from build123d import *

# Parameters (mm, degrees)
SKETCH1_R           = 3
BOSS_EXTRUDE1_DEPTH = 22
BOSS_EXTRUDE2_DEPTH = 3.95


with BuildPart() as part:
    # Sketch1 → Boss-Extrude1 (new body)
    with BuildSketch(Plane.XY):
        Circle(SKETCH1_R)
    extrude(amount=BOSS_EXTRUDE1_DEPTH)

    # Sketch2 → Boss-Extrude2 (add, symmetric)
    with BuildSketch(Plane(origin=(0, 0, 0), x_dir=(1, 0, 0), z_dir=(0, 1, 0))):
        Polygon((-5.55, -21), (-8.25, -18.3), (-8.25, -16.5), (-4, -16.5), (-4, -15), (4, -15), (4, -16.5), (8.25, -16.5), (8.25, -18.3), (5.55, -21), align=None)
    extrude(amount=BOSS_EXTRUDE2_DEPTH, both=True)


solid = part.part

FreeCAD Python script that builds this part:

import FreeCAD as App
import Part
import Sketcher
from FreeCAD import Vector
Q = App.Units.Quantity


def add_polygon(sketch, points):
    """Adds a closed chain of lines whose ends are joined by coincident constraints."""
    first, n = sketch.GeometryCount, len(points)
    for a, b in zip(points, points[1:] + points[:1]):
        sketch.addGeometry(Part.LineSegment(App.Vector(*a, 0), App.Vector(*b, 0)), False)
    for i in range(n):
        sketch.addConstraint(Sketcher.Constraint("Coincident", first + i, 2, first + (i + 1) % n, 1))

doc = App.newDocument("Part")
body = doc.addObject("PartDesign::Body", "Body")

# Sketch on XY plane
sketch1 = body.newObject("Sketcher::SketchObject", "Sketch")
sketch1.AttachmentSupport = (doc.getObject("XY_Plane"), [""])
sketch1.MapMode = "FlatFace"
sketch1.addGeometry(Part.Circle(Vector(0, 0, 0), Vector(0, 0, 1), 3), False)
sketch1.addConstraint(Sketcher.Constraint("Coincident", 0, 3, -1, 1))
sketch1.addConstraint(Sketcher.Constraint("Diameter", 0, Q("6 mm")))
pad1 = body.newObject("PartDesign::Pad", "Pad")
pad1.Profile = sketch1
pad1.Length = 22

# Sketch on XZ plane
sketch2 = body.newObject("Sketcher::SketchObject", "Sketch001")
sketch2.AttachmentSupport = (doc.getObject("XZ_Plane"), [""])
sketch2.MapMode = "FlatFace"
add_polygon(sketch2, [(-8.25, 18.3), (-5.55, 21), (5.55, 21), (8.25, 18.3), (8.25, 16.5), (4, 16.5), (4, 15), (-4, 15), (-4, 16.5), (-8.25, 16.5)])  # lines 0-9
sketch2.addConstraint(Sketcher.Constraint("Horizontal", 1))
sketch2.addConstraint(Sketcher.Constraint("Vertical", 3))
sketch2.addConstraint(Sketcher.Constraint("Horizontal", 4))
sketch2.addConstraint(Sketcher.Constraint("Vertical", 5))
sketch2.addConstraint(Sketcher.Constraint("Horizontal", 6))
sketch2.addConstraint(Sketcher.Constraint("Vertical", 7))
sketch2.addConstraint(Sketcher.Constraint("Horizontal", 8))
sketch2.addConstraint(Sketcher.Constraint("Vertical", 9))
sketch2.addConstraint(Sketcher.Constraint("Symmetric", 4, 2, 7, 2, -2))
sketch2.addConstraint(Sketcher.Constraint("Symmetric", 2, 2, 9, 2, -2))
sketch2.addConstraint(Sketcher.Constraint("Perpendicular", 0, 2))
sketch2.addConstraint(Sketcher.Constraint("Equal", 0, 2))
sketch2.addConstraint(Sketcher.Constraint("DistanceX", 6, 2, 6, 1, Q("8 mm")))
sketch2.addConstraint(Sketcher.Constraint("DistanceX", 1, 1, 1, 2, Q("11.1 mm")))
sketch2.addConstraint(Sketcher.Constraint("DistanceY", 3, 2, 3, 1, Q("1.8 mm")))
sketch2.addConstraint(Sketcher.Constraint("DistanceY", 5, 2, 5, 1, Q("1.5 mm")))
sketch2.addConstraint(Sketcher.Constraint("DistanceY", -1, 1, 0, 2, Q("21 mm")))
sketch2.addConstraint(Sketcher.Constraint("DistanceY", -1, 1, 5, 2, Q("15 mm")))
pad2 = body.newObject("PartDesign::Pad", "Pad001")
pad2.Profile = sketch2
pad2.Length = 7.9
pad2.Midplane = True

doc.recompute()
